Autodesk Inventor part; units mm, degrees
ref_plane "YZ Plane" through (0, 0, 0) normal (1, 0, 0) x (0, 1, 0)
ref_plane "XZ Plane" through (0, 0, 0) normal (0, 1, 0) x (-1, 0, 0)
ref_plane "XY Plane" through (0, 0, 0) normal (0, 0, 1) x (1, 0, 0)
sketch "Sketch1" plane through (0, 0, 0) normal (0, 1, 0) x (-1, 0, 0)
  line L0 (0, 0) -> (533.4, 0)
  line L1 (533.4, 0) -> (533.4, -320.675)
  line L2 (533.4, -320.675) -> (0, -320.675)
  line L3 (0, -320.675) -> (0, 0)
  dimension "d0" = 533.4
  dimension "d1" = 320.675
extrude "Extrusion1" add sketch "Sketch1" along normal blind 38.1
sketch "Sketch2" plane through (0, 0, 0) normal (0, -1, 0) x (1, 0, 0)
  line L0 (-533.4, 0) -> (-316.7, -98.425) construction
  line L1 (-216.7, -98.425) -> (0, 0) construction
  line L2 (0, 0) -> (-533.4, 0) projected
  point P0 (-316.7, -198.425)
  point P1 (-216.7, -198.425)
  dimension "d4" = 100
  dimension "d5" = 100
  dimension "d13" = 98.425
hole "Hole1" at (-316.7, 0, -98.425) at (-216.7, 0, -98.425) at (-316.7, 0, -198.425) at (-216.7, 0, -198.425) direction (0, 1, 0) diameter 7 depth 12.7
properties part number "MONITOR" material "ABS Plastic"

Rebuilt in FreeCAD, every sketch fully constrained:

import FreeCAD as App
import Part
import Sketcher
Q = App.Units.Quantity

doc = App.newDocument("Part")
body = doc.addObject("PartDesign::Body", "Body")

# Sketch on XZ plane
sketch1 = body.newObject("Sketcher::SketchObject", "Sketch")
sketch1.AttachmentSupport = (doc.getObject("XZ_Plane"), [""])
sketch1.MapMode = "FlatFace"
sketch1.addGeometry([
    Part.LineSegment(App.Vector(-533.4, 0, 0), App.Vector(0, 0, 0)),
    Part.LineSegment(App.Vector(0, 0, 0), App.Vector(0, -320.675, 0)),
    Part.LineSegment(App.Vector(0, -320.675, 0), App.Vector(-533.4, -320.675, 0)),
    Part.LineSegment(App.Vector(-533.4, -320.675, 0), App.Vector(-533.4, 0, 0)),
], False)
sketch1.addConstraint([
    Sketcher.Constraint("Coincident", 0, 2, 1, 1),
    Sketcher.Constraint("Coincident", 1, 2, 2, 1),
    Sketcher.Constraint("Coincident", 2, 2, 3, 1),
    Sketcher.Constraint("Coincident", 3, 2, 0, 1),
    Sketcher.Constraint("Horizontal", 0),
    Sketcher.Constraint("Vertical", 1),
    Sketcher.Constraint("Horizontal", 2),
    Sketcher.Constraint("Vertical", 3),
    Sketcher.Constraint("Coincident", 0, 2, -1, 1),
    Sketcher.Constraint("DistanceX", 0, 1, 0, 2, Q("21 in")),
    Sketcher.Constraint("DistanceY", 1, 2, 1, 1, Q("12.625 in")),
])
pad1 = body.newObject("PartDesign::Pad", "Pad")
pad1.Profile = sketch1
pad1.Length = Q("1.5 in")
pad1.Reversed = True

# Sketch on XZ plane
sketch2 = body.newObject("Sketcher::SketchObject", "Sketch001")
sketch2.AttachmentSupport = (doc.getObject("XZ_Plane"), [""])
sketch2.MapMode = "FlatFace"
sketch2.addGeometry([
    Part.Circle(App.Vector(-316.7, -98.425, 0), App.Vector(0, 0, 1), 3.5),
    Part.Circle(App.Vector(-216.7, -98.425, 0), App.Vector(0, 0, 1), 3.5),
    Part.Circle(App.Vector(-316.7, -198.425, 0), App.Vector(0, 0, 1), 3.5),
    Part.Circle(App.Vector(-216.7, -198.425, 0), App.Vector(0, 0, 1), 3.5),
], False)
sketch2.addConstraint([
    Sketcher.Constraint("Equal", 0, 1),
    Sketcher.Constraint("Equal", 1, 2),
    Sketcher.Constraint("Equal", 2, 3),
    Sketcher.Constraint("Horizontal", 0, 3, 1, 3),
    Sketcher.Constraint("Horizontal", 2, 3, 3, 3),
    Sketcher.Constraint("Vertical", 0, 3, 2, 3),
    Sketcher.Constraint("Vertical", 1, 3, 3, 3),
    Sketcher.Constraint("Diameter", 0, Q("0.2756 in")),
    Sketcher.Constraint("DistanceY", 0, 3, -1, 1, Q("3.875 in")),
    Sketcher.Constraint("DistanceY", 2, 3, -1, 1, Q("7.812 in")),
    Sketcher.Constraint("DistanceX", 0, 3, 1, 3, Q("3.937 in")),
    Sketcher.Constraint("DistanceX", 0, 3, -1, 1, Q("12.4685 in")),
])
doc.recompute()
hole = body.newObject("PartDesign::Hole", "Hole")
hole.Profile = sketch2
hole.ThreadType = "None"
hole.Diameter = Q("0.2755906 in")
hole.DepthType = "Dimension"
hole.Depth = Q("0.5 in")
hole.DrillPoint = "Flat"

doc.recompute()
